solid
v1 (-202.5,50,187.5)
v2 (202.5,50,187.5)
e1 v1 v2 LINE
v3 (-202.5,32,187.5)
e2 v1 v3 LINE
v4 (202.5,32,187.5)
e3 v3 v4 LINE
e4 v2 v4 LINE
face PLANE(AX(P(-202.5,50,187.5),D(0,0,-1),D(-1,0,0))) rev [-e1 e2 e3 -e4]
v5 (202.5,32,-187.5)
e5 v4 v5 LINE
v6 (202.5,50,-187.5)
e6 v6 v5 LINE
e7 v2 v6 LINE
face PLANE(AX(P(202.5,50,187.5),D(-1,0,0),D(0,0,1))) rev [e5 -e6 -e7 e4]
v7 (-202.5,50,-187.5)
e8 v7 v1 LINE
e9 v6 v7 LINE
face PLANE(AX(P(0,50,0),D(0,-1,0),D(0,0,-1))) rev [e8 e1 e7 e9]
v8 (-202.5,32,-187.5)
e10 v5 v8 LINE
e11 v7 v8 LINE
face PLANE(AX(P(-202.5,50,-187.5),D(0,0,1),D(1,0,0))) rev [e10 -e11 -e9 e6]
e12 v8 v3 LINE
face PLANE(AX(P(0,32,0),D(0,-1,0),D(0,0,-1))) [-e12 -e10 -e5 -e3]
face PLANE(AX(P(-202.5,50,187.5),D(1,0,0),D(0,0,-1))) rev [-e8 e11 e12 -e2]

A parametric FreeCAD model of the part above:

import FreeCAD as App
import Part
import Sketcher

doc = App.newDocument("Part")
body = doc.addObject("PartDesign::Body", "Body")

# Sketch on XZ plane
sketch1 = body.newObject("Sketcher::SketchObject", "Sketch")
sketch1.AttachmentSupport = (doc.getObject("XZ_Plane"), [""])
sketch1.MapMode = "FlatFace"
sketch1.AttachmentOffset = App.Placement(App.Vector(0, 0, -32), App.Rotation())
sketch1.addGeometry(Part.LineSegment(App.Vector(-202.5, -187.5, 0), App.Vector(-202.5, 187.5, 0)), False)
sketch1.addGeometry(Part.LineSegment(App.Vector(-202.5, 187.5, 0), App.Vector(202.5, 187.5, 0)), False)
sketch1.addGeometry(Part.LineSegment(App.Vector(202.5, 187.5, 0), App.Vector(202.5, -187.5, 0)), False)
sketch1.addGeometry(Part.LineSegment(App.Vector(202.5, -187.5, 0), App.Vector(-202.5, -187.5, 0)), False)
sketch1.addConstraint(Sketcher.Constraint("Coincident", 0, 2, 1, 1))
sketch1.addConstraint(Sketcher.Constraint("Coincident", 1, 2, 2, 1))
sketch1.addConstraint(Sketcher.Constraint("Coincident", 2, 2, 3, 1))
sketch1.addConstraint(Sketcher.Constraint("Coincident", 3, 2, 0, 1))
sketch1.addConstraint(Sketcher.Constraint("Vertical", 0))
sketch1.addConstraint(Sketcher.Constraint("Horizontal", 1))
sketch1.addConstraint(Sketcher.Constraint("Vertical", 2))
sketch1.addConstraint(Sketcher.Constraint("Horizontal", 3))
sketch1.addConstraint(Sketcher.Constraint("Symmetric", 0, 2, 2, 2, -1, 1))
sketch1.addConstraint(Sketcher.Constraint("DistanceX", 1, 1, 1, 2, 405.0))
sketch1.addConstraint(Sketcher.Constraint("DistanceY", 0, 1, 0, 2, 375.0))
pad1 = body.newObject("PartDesign::Pad", "Pad")
pad1.Profile = sketch1
pad1.Length = 18
pad1.Reversed = True

doc.recompute()
